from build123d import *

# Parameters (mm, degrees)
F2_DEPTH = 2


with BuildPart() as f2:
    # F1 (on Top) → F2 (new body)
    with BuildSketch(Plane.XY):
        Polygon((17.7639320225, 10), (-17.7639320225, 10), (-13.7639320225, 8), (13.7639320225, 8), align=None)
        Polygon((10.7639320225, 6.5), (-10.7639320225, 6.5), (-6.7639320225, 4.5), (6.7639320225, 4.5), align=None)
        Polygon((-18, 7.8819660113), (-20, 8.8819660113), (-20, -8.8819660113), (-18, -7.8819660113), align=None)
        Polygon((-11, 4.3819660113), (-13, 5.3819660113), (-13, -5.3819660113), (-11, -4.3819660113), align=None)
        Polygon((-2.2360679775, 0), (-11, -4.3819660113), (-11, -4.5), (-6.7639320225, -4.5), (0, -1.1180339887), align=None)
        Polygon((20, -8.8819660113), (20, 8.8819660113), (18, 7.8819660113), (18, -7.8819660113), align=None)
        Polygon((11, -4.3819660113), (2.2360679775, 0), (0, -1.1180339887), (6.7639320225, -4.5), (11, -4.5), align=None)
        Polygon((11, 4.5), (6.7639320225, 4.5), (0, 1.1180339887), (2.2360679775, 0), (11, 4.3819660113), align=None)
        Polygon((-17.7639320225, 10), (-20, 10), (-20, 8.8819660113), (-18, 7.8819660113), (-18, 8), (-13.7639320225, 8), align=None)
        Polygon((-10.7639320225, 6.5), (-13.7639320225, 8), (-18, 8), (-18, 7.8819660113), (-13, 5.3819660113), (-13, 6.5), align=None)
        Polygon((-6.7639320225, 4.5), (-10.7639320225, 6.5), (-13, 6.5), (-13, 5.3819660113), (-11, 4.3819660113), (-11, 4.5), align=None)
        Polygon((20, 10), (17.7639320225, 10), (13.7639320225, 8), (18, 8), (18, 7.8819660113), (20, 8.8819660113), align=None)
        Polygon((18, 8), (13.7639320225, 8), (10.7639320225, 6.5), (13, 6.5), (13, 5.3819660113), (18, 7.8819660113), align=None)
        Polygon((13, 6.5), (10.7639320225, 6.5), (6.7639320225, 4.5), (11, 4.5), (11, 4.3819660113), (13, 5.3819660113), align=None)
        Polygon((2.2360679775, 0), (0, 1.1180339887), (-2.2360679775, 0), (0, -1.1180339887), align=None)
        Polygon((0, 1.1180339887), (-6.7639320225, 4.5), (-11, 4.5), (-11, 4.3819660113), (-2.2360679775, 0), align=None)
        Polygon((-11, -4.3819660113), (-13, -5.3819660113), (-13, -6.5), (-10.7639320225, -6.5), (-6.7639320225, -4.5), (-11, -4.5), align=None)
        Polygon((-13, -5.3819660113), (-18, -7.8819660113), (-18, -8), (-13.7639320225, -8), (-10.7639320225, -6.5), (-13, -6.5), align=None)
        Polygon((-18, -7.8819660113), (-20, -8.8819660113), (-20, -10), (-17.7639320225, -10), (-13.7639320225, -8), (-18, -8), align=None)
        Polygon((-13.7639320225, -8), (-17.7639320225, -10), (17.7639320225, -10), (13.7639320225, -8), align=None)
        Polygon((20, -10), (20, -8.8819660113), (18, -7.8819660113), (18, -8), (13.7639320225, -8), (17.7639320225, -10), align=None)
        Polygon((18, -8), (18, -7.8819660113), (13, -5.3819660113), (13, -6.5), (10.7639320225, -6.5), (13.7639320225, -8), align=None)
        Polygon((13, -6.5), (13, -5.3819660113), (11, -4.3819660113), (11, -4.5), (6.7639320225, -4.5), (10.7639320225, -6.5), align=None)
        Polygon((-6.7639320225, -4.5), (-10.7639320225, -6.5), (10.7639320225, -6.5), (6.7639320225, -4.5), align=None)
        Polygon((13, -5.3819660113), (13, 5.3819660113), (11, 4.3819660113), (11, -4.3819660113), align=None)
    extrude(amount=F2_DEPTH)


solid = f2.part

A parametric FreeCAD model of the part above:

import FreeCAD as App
import Part
import Sketcher
from FreeCAD import Vector
Q = App.Units.Quantity

doc = App.newDocument("Part")
params = doc.addObject("Spreadsheet::Sheet", "Params")
for row, (alias, value) in enumerate([
    ("sketch1_width", "40 mm"),
    ("sketch1_height", "20 mm"),
    ("pad1_length", "2 mm"),
], start=1):
    params.set(f"A{row}", alias)
    params.set(f"B{row}", "=" + value)
    params.setAlias(f"B{row}", alias)

body = doc.addObject("PartDesign::Body", "Body")

sketch1 = body.newObject("Sketcher::SketchObject", "Sketch")
sketch1.AttachmentSupport = (doc.getObject("XY_Plane"), [""])
sketch1.MapMode = "FlatFace"
sketch1.addGeometry(Part.LineSegment(Vector(-20, 10, 0), Vector(-20, -10, 0)), False)
sketch1.addGeometry(Part.LineSegment(Vector(-20, -10, 0), Vector(20, -10, 0)), False)
sketch1.addGeometry(Part.LineSegment(Vector(20, -10, 0), Vector(20, 10, 0)), False)
sketch1.addGeometry(Part.LineSegment(Vector(20, 10, 0), Vector(-20, 10, 0)), False)
sketch1.addGeometry(Part.LineSegment(Vector(-13.8, -8, 0), Vector(-10.8, -6.5, 0)), False)
sketch1.addGeometry(Part.LineSegment(Vector(-10.8, -6.5, 0), Vector(10.8, -6.5, 0)), False)
sketch1.addGeometry(Part.LineSegment(Vector(10.8, -6.5, 0), Vector(13.8, -8, 0)), False)
sketch1.addGeometry(Part.LineSegment(Vector(13.8, -8, 0), Vector(-13.8, -8, 0)), False)
sketch1.addGeometry(Part.LineSegment(Vector(-6.8, -4.5, 0), Vector(0, -1.1, 0)), False)
sketch1.addGeometry(Part.LineSegment(Vector(0, -1.1, 0), Vector(6.8, -4.5, 0)), False)
sketch1.addGeometry(Part.LineSegment(Vector(6.8, -4.5, 0), Vector(-6.8, -4.5, 0)), False)
sketch1.addGeometry(Part.LineSegment(Vector(11, -4.4, 0), Vector(2.2, 0, 0)), False)
sketch1.addGeometry(Part.LineSegment(Vector(2.2, 0, 0), Vector(11, 4.4, 0)), False)
sketch1.addGeometry(Part.LineSegment(Vector(11, 4.4, 0), Vector(11, -4.4, 0)), False)
sketch1.addGeometry(Part.LineSegment(Vector(13, 5.4, 0), Vector(18, 7.9, 0)), False)
sketch1.addGeometry(Part.LineSegment(Vector(18, 7.9, 0), Vector(18, -7.9, 0)), False)
sketch1.addGeometry(Part.LineSegment(Vector(18, -7.9, 0), Vector(13, -5.4, 0)), False)
sketch1.addGeometry(Part.LineSegment(Vector(13, -5.4, 0), Vector(13, 5.4, 0)), False)
sketch1.addGeometry(Part.LineSegment(Vector(-13, -5.4, 0), Vector(-18, -7.9, 0)), False)
sketch1.addGeometry(Part.LineSegment(Vector(-18, -7.9, 0), Vector(-18, 7.9, 0)), False)
sketch1.addGeometry(Part.LineSegment(Vector(-18, 7.9, 0), Vector(-13, 5.4, 0)), False)
sketch1.addGeometry(Part.LineSegment(Vector(-13, 5.4, 0), Vector(-13, -5.4, 0)), False)
sketch1.addGeometry(Part.LineSegment(Vector(-2.2, 0, 0), Vector(-11, -4.4, 0)), False)
sketch1.addGeometry(Part.LineSegment(Vector(-11, -4.4, 0), Vector(-11, 4.4, 0)), False)
sketch1.addGeometry(Part.LineSegment(Vector(-11, 4.4, 0), Vector(-2.2, 0, 0)), False)
sketch1.addGeometry(Part.LineSegment(Vector(6.8, 4.5, 0), Vector(0, 1.1, 0)), False)
sketch1.addGeometry(Part.LineSegment(Vector(0, 1.1, 0), Vector(-6.8, 4.5, 0)), False)
sketch1.addGeometry(Part.LineSegment(Vector(-6.8, 4.5, 0), Vector(6.8, 4.5, 0)), False)
sketch1.addGeometry(Part.LineSegment(Vector(13.8, 8, 0), Vector(10.8, 6.5, 0)), False)
sketch1.addGeometry(Part.LineSegment(Vector(10.8, 6.5, 0), Vector(-10.8, 6.5, 0)), False)
sketch1.addGeometry(Part.LineSegment(Vector(-10.8, 6.5, 0), Vector(-13.8, 8, 0)), False)
sketch1.addGeometry(Part.LineSegment(Vector(-13.8, 8, 0), Vector(13.8, 8, 0)), False)
sketch1.addConstraint(Sketcher.Constraint("Coincident", 0, 2, 1, 1))
sketch1.addConstraint(Sketcher.Constraint("Coincident", 1, 2, 2, 1))
sketch1.addConstraint(Sketcher.Constraint("Coincident", 2, 2, 3, 1))
sketch1.addConstraint(Sketcher.Constraint("Coincident", 3, 2, 0, 1))
sketch1.addConstraint(Sketcher.Constraint("Coincident", 4, 2, 5, 1))
sketch1.addConstraint(Sketcher.Constraint("Coincident", 5, 2, 6, 1))
sketch1.addConstraint(Sketcher.Constraint("Coincident", 6, 2, 7, 1))
sketch1.addConstraint(Sketcher.Constraint("Coincident", 7, 2, 4, 1))
sketch1.addConstraint(Sketcher.Constraint("Coincident", 8, 2, 9, 1))
sketch1.addConstraint(Sketcher.Constraint("Coincident", 9, 2, 10, 1))
sketch1.addConstraint(Sketcher.Constraint("Coincident", 10, 2, 8, 1))
sketch1.addConstraint(Sketcher.Constraint("Coincident", 11, 2, 12, 1))
sketch1.addConstraint(Sketcher.Constraint("Coincident", 12, 2, 13, 1))
sketch1.addConstraint(Sketcher.Constraint("Coincident", 13, 2, 11, 1))
sketch1.addConstraint(Sketcher.Constraint("Coincident", 14, 2, 15, 1))
sketch1.addConstraint(Sketcher.Constraint("Coincident", 15, 2, 16, 1))
sketch1.addConstraint(Sketcher.Constraint("Coincident", 16, 2, 17, 1))
sketch1.addConstraint(Sketcher.Constraint("Coincident", 17, 2, 14, 1))
sketch1.addConstraint(Sketcher.Constraint("Coincident", 18, 2, 19, 1))
sketch1.addConstraint(Sketcher.Constraint("Coincident", 19, 2, 20, 1))
sketch1.addConstraint(Sketcher.Constraint("Coincident", 20, 2, 21, 1))
sketch1.addConstraint(Sketcher.Constraint("Coincident", 21, 2, 18, 1))
sketch1.addConstraint(Sketcher.Constraint("Coincident", 22, 2, 23, 1))
sketch1.addConstraint(Sketcher.Constraint("Coincident", 23, 2, 24, 1))
sketch1.addConstraint(Sketcher.Constraint("Coincident", 24, 2, 22, 1))
sketch1.addConstraint(Sketcher.Constraint("Coincident", 25, 2, 26, 1))
sketch1.addConstraint(Sketcher.Constraint("Coincident", 26, 2, 27, 1))
sketch1.addConstraint(Sketcher.Constraint("Coincident", 27, 2, 25, 1))
sketch1.addConstraint(Sketcher.Constraint("Coincident", 28, 2, 29, 1))
sketch1.addConstraint(Sketcher.Constraint("Coincident", 29, 2, 30, 1))
sketch1.addConstraint(Sketcher.Constraint("Coincident", 30, 2, 31, 1))
sketch1.addConstraint(Sketcher.Constraint("Coincident", 31, 2, 28, 1))
sketch1.addConstraint(Sketcher.Constraint("Vertical", 0))
sketch1.addConstraint(Sketcher.Constraint("Horizontal", 1))
sketch1.addConstraint(Sketcher.Constraint("Vertical", 2))
sketch1.addConstraint(Sketcher.Constraint("Horizontal", 3))
sketch1.addConstraint(Sketcher.Constraint("Horizontal", 5))
sketch1.addConstraint(Sketcher.Constraint("Horizontal", 7))
sketch1.addConstraint(Sketcher.Constraint("Horizontal", 10))
sketch1.addConstraint(Sketcher.Constraint("Vertical", 13))
sketch1.addConstraint(Sketcher.Constraint("Vertical", 15))
sketch1.addConstraint(Sketcher.Constraint("Vertical", 17))
sketch1.addConstraint(Sketcher.Constraint("Vertical", 19))
sketch1.addConstraint(Sketcher.Constraint("Vertical", 21))
sketch1.addConstraint(Sketcher.Constraint("Vertical", 23))
sketch1.addConstraint(Sketcher.Constraint("Horizontal", 27))
sketch1.addConstraint(Sketcher.Constraint("Horizontal", 29))
sketch1.addConstraint(Sketcher.Constraint("Horizontal", 31))
sketch1.addConstraint(Sketcher.Constraint("Symmetric", 0, 2, 2, 2, -1, 1))
sketch1.addConstraint(Sketcher.Constraint("Symmetric", 14, 2, 18, 2, -1, 1))
sketch1.addConstraint(Sketcher.Constraint("Symmetric", 16, 2, 20, 2, -1, 1))
sketch1.addConstraint(Sketcher.Constraint("Symmetric", 12, 2, 22, 2, -1, 1))
sketch1.addConstraint(Sketcher.Constraint("Symmetric", 11, 2, 24, 2, -1, 1))
sketch1.addConstraint(Sketcher.Constraint("Symmetric", 8, 2, 25, 2, -1, 1))
sketch1.addConstraint(Sketcher.Constraint("Symmetric", 9, 2, 26, 2, -1, 1))
sketch1.addConstraint(Sketcher.Constraint("Symmetric", 4, 2, 28, 2, -1, 1))
sketch1.addConstraint(Sketcher.Constraint("Symmetric", 6, 2, 30, 2, -1, 1))
sketch1.addConstraint(Sketcher.Constraint("PointOnObject", 8, 2, -2))
sketch1.addConstraint(Sketcher.Constraint("PointOnObject", 11, 2, -1))
sketch1.addConstraint(Sketcher.Constraint("Parallel", 4, 8))
sketch1.addConstraint(Sketcher.Constraint("Parallel", 6, 9))
sketch1.addConstraint(Sketcher.Constraint("Parallel", 9, 11))
sketch1.addConstraint(Sketcher.Constraint("Parallel", 8, 12))
sketch1.addConstraint(Sketcher.Constraint("Parallel", 12, 14))
sketch1.addConstraint(Sketcher.Constraint("Parallel", 11, 16))
sketch1.addConstraint(Sketcher.Constraint("Parallel", 14, 18))
sketch1.addConstraint(Sketcher.Constraint("Parallel", 16, 20))
sketch1.addConstraint(Sketcher.Constraint("Parallel", 20, 24))
sketch1.addConstraint(Sketcher.Constraint("Parallel", 22, 25))
sketch1.addConstraint(Sketcher.Constraint("Parallel", 25, 28))
sketch1.addConstraint(Sketcher.Constraint("Parallel", 26, 30))
sketch1.addConstraint(Sketcher.Constraint("Horizontal", 15, 2, 18, 2))
sketch1.addConstraint(Sketcher.Constraint("Horizontal", 17, 2, 20, 2))
sketch1.addConstraint(Sketcher.Constraint("Vertical", 5, 2, 28, 2))
sketch1.addConstraint(Sketcher.Constraint("DistanceX", 1, 1, 1, 2, Q("40 mm")))
sketch1.addConstraint(Sketcher.Constraint("DistanceY", 0, 2, 0, 1, Q("20 mm")))
sketch1.addConstraint(Sketcher.Constraint("DistanceY", 6, 2, -1, 1, Q("8 mm")))
sketch1.addConstraint(Sketcher.Constraint("DistanceX", -1, 1, 12, 2, Q("11 mm")))
sketch1.addConstraint(Sketcher.Constraint("DistanceX", -1, 1, 14, 2, Q("18 mm")))
sketch1.addConstraint(Sketcher.Constraint("DistanceX", -1, 1, 16, 2, Q("13 mm")))
sketch1.addConstraint(Sketcher.Constraint("DistanceX", 5, 2, 6, 2, Q("3 mm")))
sketch1.addConstraint(Sketcher.Constraint("DistanceX", 9, 2, 5, 2, Q("4 mm")))
sketch1.addConstraint(Sketcher.Constraint("DistanceY", 5, 2, 9, 2, Q("2 mm")))
sketch1.addConstraint(Sketcher.Constraint("DistanceX", 10, 2, 11, 2, Q("9 mm")))
sketch1.addConstraint(Sketcher.Constraint("DistanceY", 16, 2, 13, 2, Q("1 mm")))
sketch1.addConstraint(Sketcher.Constraint("DistanceY", 4, 2, -1, 1, Q("6.5 mm")))
sketch1.addConstraint(Sketcher.Constraint("DistanceX", 5, 1, 5, 2, Q("21.527864 mm")))
sketch1.setExpression("Constraints[74]", "Params.sketch1_width")
sketch1.setExpression("Constraints[75]", "Params.sketch1_height")
pad1 = body.newObject("PartDesign::Pad", "Pad")
pad1.Profile = sketch1
pad1.setExpression("Length", "Params.pad1_length")

doc.recompute()
